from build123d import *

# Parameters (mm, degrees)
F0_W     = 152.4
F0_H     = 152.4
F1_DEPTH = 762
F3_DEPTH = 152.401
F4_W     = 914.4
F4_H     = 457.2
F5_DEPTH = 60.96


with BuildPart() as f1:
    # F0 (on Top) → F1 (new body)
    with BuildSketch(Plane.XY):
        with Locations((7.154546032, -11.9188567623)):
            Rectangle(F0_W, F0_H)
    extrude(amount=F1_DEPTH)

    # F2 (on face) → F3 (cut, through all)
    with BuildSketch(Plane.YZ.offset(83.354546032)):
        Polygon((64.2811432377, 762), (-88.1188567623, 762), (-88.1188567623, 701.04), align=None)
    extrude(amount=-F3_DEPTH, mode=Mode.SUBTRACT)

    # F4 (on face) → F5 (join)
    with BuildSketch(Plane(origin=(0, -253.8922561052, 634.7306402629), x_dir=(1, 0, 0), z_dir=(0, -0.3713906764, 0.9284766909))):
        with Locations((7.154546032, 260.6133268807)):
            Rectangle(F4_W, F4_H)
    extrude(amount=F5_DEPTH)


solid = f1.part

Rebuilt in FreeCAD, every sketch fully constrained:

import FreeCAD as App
import Part
import Sketcher

V = App.Vector
Q = App.Units.Quantity

doc = App.newDocument("Part")
body = doc.addObject("PartDesign::Body", "Body")

sketch1 = body.newObject("Sketcher::SketchObject", "Sketch")
sketch1.AttachmentSupport = (doc.getObject("XY_Plane"), [""])
sketch1.MapMode = "FlatFace"
sketch1.addGeometry([
    Part.LineSegment(V(-69, 64, 0), V(-69, -88, 0)),
    Part.LineSegment(V(-69, -88, 0), V(83, -88, 0)),
    Part.LineSegment(V(83, -88, 0), V(83, 64, 0)),
    Part.LineSegment(V(83, 64, 0), V(-69, 64, 0)),
], False)
sketch1.addConstraint([
    Sketcher.Constraint("Coincident", 0, 2, 1, 1),
    Sketcher.Constraint("Coincident", 1, 2, 2, 1),
    Sketcher.Constraint("Coincident", 2, 2, 3, 1),
    Sketcher.Constraint("Coincident", 3, 2, 0, 1),
    Sketcher.Constraint("Vertical", 0),
    Sketcher.Constraint("Horizontal", 1),
    Sketcher.Constraint("Vertical", 2),
    Sketcher.Constraint("Horizontal", 3),
    Sketcher.Constraint("Equal", 3, 0),
    Sketcher.Constraint("DistanceX", 1, 1, 1, 2, Q("6 in")),
    Sketcher.Constraint("DistanceX", 0, 2, -1, 1, Q("69.045454 mm")),
    Sketcher.Constraint("DistanceY", 0, 2, -1, 1, Q("88.118857 mm")),
])
pad1 = body.newObject("PartDesign::Pad", "Pad")
pad1.Profile = sketch1
pad1.Length = Q("30 in")

sketch2 = body.newObject("Sketcher::SketchObject", "Sketch001")
sketch2.AttachmentSupport = (doc.getObject("YZ_Plane"), [""])
sketch2.MapMode = "FlatFace"
sketch2.AttachmentOffset = App.Placement(V(0, 0, 83.354546), App.Rotation())
sketch2.addGeometry([
    Part.LineSegment(V(64, 762, 0), V(-88, 762, 0)),
    Part.LineSegment(V(-88, 762, 0), V(-88, 701, 0)),
    Part.LineSegment(V(-88, 701, 0), V(64, 762, 0)),
], False)
sketch2.addConstraint([
    Sketcher.Constraint("Coincident", 0, 2, 1, 1),
    Sketcher.Constraint("Coincident", 1, 2, 2, 1),
    Sketcher.Constraint("Coincident", 2, 2, 0, 1),
    Sketcher.Constraint("Horizontal", 0),
    Sketcher.Constraint("Vertical", 1),
    Sketcher.Constraint("DistanceX", 0, 2, 0, 1, Q("6 in")),
    Sketcher.Constraint("DistanceY", 1, 2, 1, 1, Q("2.4 in")),
    Sketcher.Constraint("DistanceY", -1, 1, 0, 2, Q("30 in")),
    Sketcher.Constraint("DistanceX", 0, 2, -1, 1, Q("88.118857 mm")),
])
pocket1 = body.newObject("PartDesign::Pocket", "Pocket")
pocket1.Profile = sketch2
pocket1.Type = "ThroughAll"

sketch3 = body.newObject("Sketcher::SketchObject", "Sketch002")
sketch3.Placement = App.Placement(V(0, -253.892256, 634.73064), App.Rotation(V(1, 0, 0), V(0, 0.928476691, 0.371390676), V(0, -0.371390676, 0.928476691), "ZXY"))
sketch3.addGeometry([
    Part.LineSegment(V(-450, 489, 0), V(-450, 32, 0)),
    Part.LineSegment(V(-450, 32, 0), V(464, 32, 0)),
    Part.LineSegment(V(464, 32, 0), V(464, 489, 0)),
    Part.LineSegment(V(464, 489, 0), V(-450, 489, 0)),
], False)
sketch3.addConstraint([
    Sketcher.Constraint("Coincident", 0, 2, 1, 1),
    Sketcher.Constraint("Coincident", 1, 2, 2, 1),
    Sketcher.Constraint("Coincident", 2, 2, 3, 1),
    Sketcher.Constraint("Coincident", 3, 2, 0, 1),
    Sketcher.Constraint("Vertical", 0),
    Sketcher.Constraint("Horizontal", 1),
    Sketcher.Constraint("Vertical", 2),
    Sketcher.Constraint("Horizontal", 3),
    Sketcher.Constraint("DistanceX", 1, 1, 1, 2, Q("36 in")),
    Sketcher.Constraint("DistanceY", 0, 2, 0, 1, Q("18 in")),
    Sketcher.Constraint("DistanceX", 0, 2, -1, 1, Q("450.045454 mm")),
    Sketcher.Constraint("DistanceY", -1, 1, 0, 2, Q("32.013327 mm")),
])
pad2 = body.newObject("PartDesign::Pad", "Pad001")
pad2.Profile = sketch3
pad2.Length = Q("2.4 in")

doc.recompute()
